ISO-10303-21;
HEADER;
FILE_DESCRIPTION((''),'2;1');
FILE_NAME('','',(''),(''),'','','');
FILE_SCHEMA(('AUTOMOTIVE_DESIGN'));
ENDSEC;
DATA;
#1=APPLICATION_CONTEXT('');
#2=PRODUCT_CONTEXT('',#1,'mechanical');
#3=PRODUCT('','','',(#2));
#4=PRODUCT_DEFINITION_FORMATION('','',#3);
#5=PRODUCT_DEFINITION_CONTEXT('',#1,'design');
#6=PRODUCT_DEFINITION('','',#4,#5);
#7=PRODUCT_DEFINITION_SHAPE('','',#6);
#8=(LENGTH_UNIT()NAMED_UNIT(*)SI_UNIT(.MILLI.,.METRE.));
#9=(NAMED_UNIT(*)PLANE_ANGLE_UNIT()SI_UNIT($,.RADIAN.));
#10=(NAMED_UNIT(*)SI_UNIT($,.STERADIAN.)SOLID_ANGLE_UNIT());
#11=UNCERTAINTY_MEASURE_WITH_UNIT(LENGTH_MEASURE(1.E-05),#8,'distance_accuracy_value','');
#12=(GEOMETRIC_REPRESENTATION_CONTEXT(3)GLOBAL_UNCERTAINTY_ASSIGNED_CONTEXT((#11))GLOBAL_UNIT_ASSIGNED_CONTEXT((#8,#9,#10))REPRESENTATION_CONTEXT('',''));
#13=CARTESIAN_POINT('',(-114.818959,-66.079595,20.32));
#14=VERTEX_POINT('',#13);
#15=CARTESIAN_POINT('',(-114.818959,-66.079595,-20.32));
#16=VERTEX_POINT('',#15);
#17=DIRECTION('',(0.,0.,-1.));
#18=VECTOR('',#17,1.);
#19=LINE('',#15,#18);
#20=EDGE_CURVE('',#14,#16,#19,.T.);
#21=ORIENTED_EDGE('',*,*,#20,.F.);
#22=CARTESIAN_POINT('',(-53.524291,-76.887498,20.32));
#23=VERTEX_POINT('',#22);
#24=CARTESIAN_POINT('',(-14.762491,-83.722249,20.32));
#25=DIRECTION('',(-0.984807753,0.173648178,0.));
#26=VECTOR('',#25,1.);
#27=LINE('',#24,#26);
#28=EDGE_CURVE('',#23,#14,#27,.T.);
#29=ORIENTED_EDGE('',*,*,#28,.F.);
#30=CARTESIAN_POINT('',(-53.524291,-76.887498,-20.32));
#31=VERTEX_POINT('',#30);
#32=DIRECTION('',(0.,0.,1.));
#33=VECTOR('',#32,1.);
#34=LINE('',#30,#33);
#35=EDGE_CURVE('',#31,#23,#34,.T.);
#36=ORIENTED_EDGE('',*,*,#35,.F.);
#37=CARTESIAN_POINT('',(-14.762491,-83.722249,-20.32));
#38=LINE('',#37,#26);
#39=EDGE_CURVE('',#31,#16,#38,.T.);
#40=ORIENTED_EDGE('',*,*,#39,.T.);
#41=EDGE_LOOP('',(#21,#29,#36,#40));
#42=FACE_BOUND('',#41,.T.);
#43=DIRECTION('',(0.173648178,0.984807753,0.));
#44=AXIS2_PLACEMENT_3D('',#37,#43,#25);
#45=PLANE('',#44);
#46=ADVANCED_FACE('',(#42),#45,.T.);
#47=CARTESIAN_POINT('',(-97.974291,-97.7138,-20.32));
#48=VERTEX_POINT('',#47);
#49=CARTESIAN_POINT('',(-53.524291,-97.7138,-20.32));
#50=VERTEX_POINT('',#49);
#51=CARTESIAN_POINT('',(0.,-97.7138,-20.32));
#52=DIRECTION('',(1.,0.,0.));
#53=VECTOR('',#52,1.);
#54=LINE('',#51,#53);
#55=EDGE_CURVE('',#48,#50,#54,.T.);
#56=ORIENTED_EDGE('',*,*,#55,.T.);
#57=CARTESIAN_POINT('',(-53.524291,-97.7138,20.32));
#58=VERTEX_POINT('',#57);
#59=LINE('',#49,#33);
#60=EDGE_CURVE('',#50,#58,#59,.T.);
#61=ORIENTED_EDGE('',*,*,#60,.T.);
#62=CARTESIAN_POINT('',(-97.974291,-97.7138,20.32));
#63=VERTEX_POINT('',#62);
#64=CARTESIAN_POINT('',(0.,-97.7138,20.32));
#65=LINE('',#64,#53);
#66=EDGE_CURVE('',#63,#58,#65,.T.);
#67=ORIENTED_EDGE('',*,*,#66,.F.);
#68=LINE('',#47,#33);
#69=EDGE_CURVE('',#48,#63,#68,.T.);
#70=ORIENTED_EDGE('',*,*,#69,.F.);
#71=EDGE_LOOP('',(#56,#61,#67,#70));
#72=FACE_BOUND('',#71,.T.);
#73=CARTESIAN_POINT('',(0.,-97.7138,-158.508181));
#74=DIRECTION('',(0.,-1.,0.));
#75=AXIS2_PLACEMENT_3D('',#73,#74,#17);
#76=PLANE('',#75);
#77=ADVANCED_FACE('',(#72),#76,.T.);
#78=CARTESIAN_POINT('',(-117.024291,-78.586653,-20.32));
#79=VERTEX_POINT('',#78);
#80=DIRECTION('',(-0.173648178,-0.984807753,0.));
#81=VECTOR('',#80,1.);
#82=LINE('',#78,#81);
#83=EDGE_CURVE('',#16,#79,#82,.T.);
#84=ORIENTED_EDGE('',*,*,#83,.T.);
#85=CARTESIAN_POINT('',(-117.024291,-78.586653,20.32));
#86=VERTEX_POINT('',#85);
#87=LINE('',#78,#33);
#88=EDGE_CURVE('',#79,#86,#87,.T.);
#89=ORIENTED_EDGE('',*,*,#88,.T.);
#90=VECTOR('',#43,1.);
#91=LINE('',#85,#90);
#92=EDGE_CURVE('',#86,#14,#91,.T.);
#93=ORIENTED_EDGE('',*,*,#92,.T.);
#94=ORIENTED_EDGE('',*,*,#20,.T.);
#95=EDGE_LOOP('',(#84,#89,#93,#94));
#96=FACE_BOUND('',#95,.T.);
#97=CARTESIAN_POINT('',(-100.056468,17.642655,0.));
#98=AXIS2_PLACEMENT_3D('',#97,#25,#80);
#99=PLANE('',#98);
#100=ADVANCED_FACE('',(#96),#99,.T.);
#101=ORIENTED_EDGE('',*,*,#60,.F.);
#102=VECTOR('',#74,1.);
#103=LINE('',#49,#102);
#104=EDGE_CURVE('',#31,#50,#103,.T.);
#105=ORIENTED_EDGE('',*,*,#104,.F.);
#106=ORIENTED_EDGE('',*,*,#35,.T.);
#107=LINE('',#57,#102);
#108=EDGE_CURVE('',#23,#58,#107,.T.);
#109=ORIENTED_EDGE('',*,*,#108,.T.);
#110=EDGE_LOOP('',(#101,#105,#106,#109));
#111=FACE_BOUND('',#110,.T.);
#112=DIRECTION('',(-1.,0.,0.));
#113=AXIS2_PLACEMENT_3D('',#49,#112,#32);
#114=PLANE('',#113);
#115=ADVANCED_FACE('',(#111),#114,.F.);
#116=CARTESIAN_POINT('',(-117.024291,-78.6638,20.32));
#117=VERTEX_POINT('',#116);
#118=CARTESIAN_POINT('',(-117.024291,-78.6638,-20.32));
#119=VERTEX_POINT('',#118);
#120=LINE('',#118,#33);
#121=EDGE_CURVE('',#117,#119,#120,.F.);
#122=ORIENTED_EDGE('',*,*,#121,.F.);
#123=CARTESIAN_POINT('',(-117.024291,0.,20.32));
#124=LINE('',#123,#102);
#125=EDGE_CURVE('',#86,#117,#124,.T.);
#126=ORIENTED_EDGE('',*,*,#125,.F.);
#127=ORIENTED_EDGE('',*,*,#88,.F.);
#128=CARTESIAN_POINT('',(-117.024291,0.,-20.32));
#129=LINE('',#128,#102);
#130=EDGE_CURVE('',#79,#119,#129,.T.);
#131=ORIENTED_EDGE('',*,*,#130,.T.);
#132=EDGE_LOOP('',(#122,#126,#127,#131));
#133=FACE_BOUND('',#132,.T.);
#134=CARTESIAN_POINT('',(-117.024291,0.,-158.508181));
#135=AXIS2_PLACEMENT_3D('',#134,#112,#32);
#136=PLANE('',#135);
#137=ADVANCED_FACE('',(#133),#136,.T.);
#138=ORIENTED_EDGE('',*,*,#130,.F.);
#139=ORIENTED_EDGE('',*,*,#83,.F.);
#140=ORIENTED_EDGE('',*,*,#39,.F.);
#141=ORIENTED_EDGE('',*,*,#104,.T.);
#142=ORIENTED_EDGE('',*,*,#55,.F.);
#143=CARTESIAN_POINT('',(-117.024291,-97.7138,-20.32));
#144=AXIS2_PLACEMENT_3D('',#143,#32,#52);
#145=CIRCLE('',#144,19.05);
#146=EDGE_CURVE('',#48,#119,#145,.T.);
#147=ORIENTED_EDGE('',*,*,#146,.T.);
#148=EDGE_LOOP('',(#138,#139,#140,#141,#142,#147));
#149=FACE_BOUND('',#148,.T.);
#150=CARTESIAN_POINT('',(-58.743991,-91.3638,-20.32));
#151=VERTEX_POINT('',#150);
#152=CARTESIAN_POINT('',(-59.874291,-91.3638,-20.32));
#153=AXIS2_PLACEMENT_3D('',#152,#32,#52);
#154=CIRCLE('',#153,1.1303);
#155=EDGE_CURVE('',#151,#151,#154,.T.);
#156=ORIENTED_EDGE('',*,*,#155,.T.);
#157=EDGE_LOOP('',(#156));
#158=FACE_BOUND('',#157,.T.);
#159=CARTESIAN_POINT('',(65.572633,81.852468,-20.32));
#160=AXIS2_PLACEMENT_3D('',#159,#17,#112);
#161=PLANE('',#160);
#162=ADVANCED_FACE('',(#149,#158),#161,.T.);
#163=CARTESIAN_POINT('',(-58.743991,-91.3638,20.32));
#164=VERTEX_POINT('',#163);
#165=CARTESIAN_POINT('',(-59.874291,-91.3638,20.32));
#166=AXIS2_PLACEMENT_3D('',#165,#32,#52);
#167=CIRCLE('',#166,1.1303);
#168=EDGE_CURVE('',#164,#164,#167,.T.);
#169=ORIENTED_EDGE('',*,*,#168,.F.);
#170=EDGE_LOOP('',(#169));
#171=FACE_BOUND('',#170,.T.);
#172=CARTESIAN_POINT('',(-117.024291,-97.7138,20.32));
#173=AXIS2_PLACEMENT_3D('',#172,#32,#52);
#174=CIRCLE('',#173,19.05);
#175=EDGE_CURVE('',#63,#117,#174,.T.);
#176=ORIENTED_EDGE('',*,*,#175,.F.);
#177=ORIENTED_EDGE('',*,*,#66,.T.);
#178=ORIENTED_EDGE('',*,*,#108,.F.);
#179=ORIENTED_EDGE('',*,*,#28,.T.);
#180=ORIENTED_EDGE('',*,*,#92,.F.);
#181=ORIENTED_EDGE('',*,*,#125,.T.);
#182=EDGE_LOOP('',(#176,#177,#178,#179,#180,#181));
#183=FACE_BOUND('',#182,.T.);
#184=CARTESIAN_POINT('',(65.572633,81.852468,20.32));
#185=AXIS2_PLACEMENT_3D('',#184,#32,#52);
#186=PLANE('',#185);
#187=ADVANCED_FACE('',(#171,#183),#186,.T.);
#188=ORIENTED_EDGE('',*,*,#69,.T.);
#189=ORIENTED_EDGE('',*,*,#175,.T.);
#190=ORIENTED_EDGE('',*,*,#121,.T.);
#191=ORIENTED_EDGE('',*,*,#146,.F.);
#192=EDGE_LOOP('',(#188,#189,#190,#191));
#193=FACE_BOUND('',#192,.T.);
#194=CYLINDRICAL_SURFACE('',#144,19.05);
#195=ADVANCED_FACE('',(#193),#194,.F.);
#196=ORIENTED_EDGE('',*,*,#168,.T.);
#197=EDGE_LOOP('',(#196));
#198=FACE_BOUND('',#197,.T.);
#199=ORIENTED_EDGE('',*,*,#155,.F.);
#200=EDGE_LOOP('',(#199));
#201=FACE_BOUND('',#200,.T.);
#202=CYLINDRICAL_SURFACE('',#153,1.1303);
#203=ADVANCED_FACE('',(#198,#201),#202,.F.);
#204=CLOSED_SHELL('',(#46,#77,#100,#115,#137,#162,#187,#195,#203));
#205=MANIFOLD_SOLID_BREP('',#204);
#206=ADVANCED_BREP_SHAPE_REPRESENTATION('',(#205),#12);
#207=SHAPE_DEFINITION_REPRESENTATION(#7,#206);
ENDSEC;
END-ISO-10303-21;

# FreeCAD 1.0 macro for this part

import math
import FreeCAD as App
import Part
import Sketcher
from FreeCAD import Vector
Q = App.Units.Quantity

doc = App.newDocument("Part")
body = doc.addObject("PartDesign::Body", "Body")

sketch1 = body.newObject("Sketcher::SketchObject", "Sketch")
sketch1.Placement = App.Placement(Vector(-117.024291, -78.586653, -20.32), App.Rotation(Vector(0.051794909, 0.293743526, 0.954479978), Vector(-0.165743709, -0.939979282, 0.298274993), Vector(0.984807753, -0.173648178, 0), "ZXY"))
sketch1.addGeometry(Part.LineSegment(Vector(0, 0, 0), Vector(3.788092, -12.121896, 0)), False)
sketch1.addGeometry(Part.LineSegment(Vector(3.788092, -12.121896, 0), Vector(42.578159, 0, 0)), False)
sketch1.addGeometry(Part.LineSegment(Vector(42.578159, 0, 0), Vector(38.790066, 12.121896, 0)), False)
sketch1.addGeometry(Part.LineSegment(Vector(38.790066, 12.121896, 0), Vector(0, 0, 0)), False)
sketch1.addConstraint(Sketcher.Constraint("Coincident", 0, 2, 1, 1))
sketch1.addConstraint(Sketcher.Constraint("Coincident", 1, 2, 2, 1))
sketch1.addConstraint(Sketcher.Constraint("Coincident", 2, 2, 3, 1))
sketch1.addConstraint(Sketcher.Constraint("Coincident", 3, 2, 0, 1))
sketch1.addConstraint(Sketcher.Constraint("Coincident", 3, 2, -1, 1))
sketch1.addConstraint(Sketcher.Constraint("PointOnObject", 1, 2, -1))
sketch1.addConstraint(Sketcher.Constraint("Perpendicular", 0, 1))
sketch1.addConstraint(Sketcher.Constraint("Perpendicular", 1, 2))
sketch1.addConstraint(Sketcher.Constraint("Perpendicular", 2, 3))
sketch1.addConstraint(Sketcher.Constraint("Distance", 0, Q("0.5 in")))
sketch1.addConstraint(Sketcher.Constraint("Distance", 1, Q("1.6 in")))

sketch2 = body.newObject("Sketcher::SketchObject", "Sketch001")
sketch2.AttachmentSupport = (doc.getObject("XY_Plane"), [""])
sketch2.MapMode = "FlatFace"
sketch2.addGeometry(Part.LineSegment(Vector(-111.378641, -46.568583, 0), Vector(-11.322174, -64.211238, 0)), False)
sketch2.addGeometry(Part.ArcOfCircle(Part.Circle(Vector(0, 0, 0), Vector(0, 0, 1), 65.2018), math.radians(-100), math.radians(30)), False)
sketch2.addGeometry(Part.LineSegment(Vector(56.466415, 32.6009, 0), Vector(37.416415, 65.596468, 0)), False)
sketch2.addConstraint(Sketcher.Constraint("Tangent", 0, 2, 1, 1))
sketch2.addConstraint(Sketcher.Constraint("Tangent", 1, 2, 2, 1))
sketch2.addConstraint(Sketcher.Constraint("Coincident", 1, 3, -1, 1))
sketch2.addConstraint(Sketcher.Constraint("Distance", 0, Q("4 in")))
sketch2.addConstraint(Sketcher.Constraint("Angle", 0, Q("-10 deg")))
sketch2.addConstraint(Sketcher.Constraint("Angle", 2, Q("120 deg")))
sketch2.addConstraint(Sketcher.Constraint("Radius", 1, Q("2.567 in")))
sketch2.addConstraint(Sketcher.Constraint("Distance", 2, Q("1.5 in")))
doc.recompute()

additivepipe = body.newObject("PartDesign::AdditivePipe", "AdditivePipe")
additivepipe.Profile = sketch1
additivepipe.Spine = (sketch2, ["Edge1", "Edge2", "Edge3"])

sketch3 = body.newObject("Sketcher::SketchObject", "Sketch002")
sketch3.AttachmentSupport = (doc.getObject("XY_Plane"), [""])
sketch3.MapMode = "FlatFace"
sketch3.AttachmentOffset = App.Placement(Vector(0, 0, 0.8 * 25.4), App.Rotation())
sketch3.addGeometry(Part.LineSegment(Vector(-16.967823, -96.229308, 0), Vector(-117.024291, -78.586653, 0)), False)
sketch3.addGeometry(Part.LineSegment(Vector(-117.024291, -78.586653, 0), Vector(-117.024291, -97.7138, 0)), False)
sketch3.addGeometry(Part.LineSegment(Vector(-117.024291, -97.7138, 0), Vector(0, -97.7138, 0)), False)
sketch3.addGeometry(Part.ArcOfCircle(Part.Circle(Vector(0, 0, 0), Vector(0, 0, 1), 97.7138), math.radians(-100), math.radians(-90)), False)
sketch3.addGeometry(Part.ArcOfCircle(Part.Circle(Vector(0, 0, 0), Vector(0, 0, 1), 97.7138), math.radians(-90), math.radians(0)), False)
sketch3.addGeometry(Part.LineSegment(Vector(0, -97.7138, 0), Vector(97.7138, -97.7138, 0)), False)
sketch3.addGeometry(Part.LineSegment(Vector(97.7138, -97.7138, 0), Vector(97.7138, 0, 0)), False)
sketch3.addGeometry(Part.ArcOfCircle(Part.Circle(Vector(0, 0, 0), Vector(0, 0, 1), 97.7138), math.radians(0), math.radians(30)), False)
sketch3.addGeometry(Part.LineSegment(Vector(97.7138, 0, 0), Vector(97.7138, 81.852468, 0)), False)
sketch3.addGeometry(Part.LineSegment(Vector(97.7138, 81.852468, 0), Vector(65.572633, 81.852468, 0)), False)
sketch3.addGeometry(Part.LineSegment(Vector(65.572633, 81.852468, 0), Vector(84.622633, 48.8569, 0)), False)
sketch3.addConstraint(Sketcher.Constraint("Coincident", 0, 2, 1, 1))
sketch3.addConstraint(Sketcher.Constraint("Coincident", 1, 2, 2, 1))
sketch3.addConstraint(Sketcher.Constraint("Tangent", 2, 2, 3, 2))
sketch3.addConstraint(Sketcher.Constraint("Tangent", 3, 1, 0, 1))
sketch3.addConstraint(Sketcher.Constraint("Tangent", 4, 1, 5, 1))
sketch3.addConstraint(Sketcher.Constraint("Coincident", 5, 2, 6, 1))
sketch3.addConstraint(Sketcher.Constraint("Tangent", 6, 2, 4, 2))
sketch3.addConstraint(Sketcher.Constraint("Tangent", 7, 1, 8, 1))
sketch3.addConstraint(Sketcher.Constraint("Coincident", 8, 2, 9, 1))
sketch3.addConstraint(Sketcher.Constraint("Coincident", 9, 2, 10, 1))
sketch3.addConstraint(Sketcher.Constraint("Tangent", 10, 2, 7, 2))
sketch3.addConstraint(Sketcher.Constraint("Vertical", 1))
sketch3.addConstraint(Sketcher.Constraint("Horizontal", 2))
sketch3.addConstraint(Sketcher.Constraint("Horizontal", 5))
sketch3.addConstraint(Sketcher.Constraint("Vertical", 6))
sketch3.addConstraint(Sketcher.Constraint("Vertical", 8))
sketch3.addConstraint(Sketcher.Constraint("Horizontal", 9))
sketch3.addConstraint(Sketcher.Constraint("Coincident", 3, 3, -1, 1))
sketch3.addConstraint(Sketcher.Constraint("Coincident", 4, 3, -1, 1))
sketch3.addConstraint(Sketcher.Constraint("Coincident", 7, 3, -1, 1))
sketch3.addConstraint(Sketcher.Constraint("Equal", 3, 4))
sketch3.addConstraint(Sketcher.Constraint("Equal", 4, 7))
sketch3.addConstraint(Sketcher.Constraint("Distance", 0, Q("4 in")))
sketch3.addConstraint(Sketcher.Constraint("Angle", 0, Q("170 deg")))
sketch3.addConstraint(Sketcher.Constraint("Angle", 10, Q("-60 deg")))
sketch3.addConstraint(Sketcher.Constraint("Radius", 3, Q("3.847 in")))
sketch3.addConstraint(Sketcher.Constraint("Distance", 10, Q("1.5 in")))
pad1 = body.newObject("PartDesign::Pad", "Pad")
pad1.Profile = sketch3
pad1.Length = Q("1.6 in")
pad1.Reversed = True

sketch4 = body.newObject("Sketcher::SketchObject", "Sketch003")
sketch4.AttachmentSupport = (doc.getObject("XY_Plane"), [""])
sketch4.MapMode = "FlatFace"
sketch4.AttachmentOffset = App.Placement(Vector(0, 0, 0.8 * 25.4), App.Rotation())
sketch4.addGeometry(Part.Circle(Vector(91.3638, -91.3638, 0), Vector(0, 0, 1), 1.1303), False)
sketch4.addGeometry(Part.Circle(Vector(-41.9735, -91.3638, 0), Vector(0, 0, 1), 1.1303), False)
sketch4.addConstraint(Sketcher.Constraint("Equal", 0, 1))
sketch4.addConstraint(Sketcher.Constraint("Horizontal", 0, 3, 1, 3))
sketch4.addConstraint(Sketcher.Constraint("Diameter", 0, Q("0.089 in")))
sketch4.addConstraint(Sketcher.Constraint("DistanceX", -1, 1, 0, 3, Q("3.597 in")))
sketch4.addConstraint(Sketcher.Constraint("DistanceY", 0, 3, -1, 1, Q("3.597 in")))
sketch4.addConstraint(Sketcher.Constraint("DistanceX", 1, 3, -1, 1, Q("1.6525 in")))
pocket1 = body.newObject("PartDesign::Pocket", "Pocket")
pocket1.Profile = sketch4
pocket1.Type = "ThroughAll"

sketch5 = body.newObject("Sketcher::SketchObject", "Sketch004")
sketch5.AttachmentSupport = (doc.getObject("XY_Plane"), [""])
sketch5.MapMode = "FlatFace"
sketch5.AttachmentOffset = App.Placement(Vector(0, 0, 0.8 * 25.4), App.Rotation())
sketch5.addGeometry(Part.LineSegment(Vector(-53.524291, 97.809508, 0), Vector(-53.524291, -97.7138, 0)), False)
sketch5.addGeometry(Part.LineSegment(Vector(-53.524291, -97.7138, 0), Vector(141.999017, -97.7138, 0)), False)
sketch5.addGeometry(Part.LineSegment(Vector(141.999017, -97.7138, 0), Vector(141.999017, 97.809508, 0)), False)
sketch5.addGeometry(Part.LineSegment(Vector(141.999017, 97.809508, 0), Vector(-53.524291, 97.809508, 0)), False)
sketch5.addConstraint(Sketcher.Constraint("Coincident", 0, 2, 1, 1))
sketch5.addConstraint(Sketcher.Constraint("Coincident", 1, 2, 2, 1))
sketch5.addConstraint(Sketcher.Constraint("Coincident", 2, 2, 3, 1))
sketch5.addConstraint(Sketcher.Constraint("Coincident", 3, 2, 0, 1))
sketch5.addConstraint(Sketcher.Constraint("Vertical", 0))
sketch5.addConstraint(Sketcher.Constraint("Horizontal", 1))
sketch5.addConstraint(Sketcher.Constraint("Vertical", 2))
sketch5.addConstraint(Sketcher.Constraint("Horizontal", 3))
sketch5.addConstraint(Sketcher.Constraint("Equal", 3, 0))
sketch5.addConstraint(Sketcher.Constraint("DistanceY", 0, 2, -1, 1, Q("3.847 in")))
sketch5.addConstraint(Sketcher.Constraint("DistanceX", 1, 1, 1, 2, Q("195.523308 mm")))
sketch5.addConstraint(Sketcher.Constraint("DistanceX", 0, 2, -1, 1, Q("53.524291 mm")))
pocket2 = body.newObject("PartDesign::Pocket", "Pocket001")
pocket2.Profile = sketch5
pocket2.Type = "ThroughAll"

sketch6 = body.newObject("Sketcher::SketchObject", "Sketch005")
sketch6.AttachmentSupport = (doc.getObject("XY_Plane"), [""])
sketch6.MapMode = "FlatFace"
sketch6.AttachmentOffset = App.Placement(Vector(0, 0, 0.8 * 25.4), App.Rotation())
sketch6.addGeometry(Part.Circle(Vector(-59.874291, -91.3638, 0), Vector(0, 0, 1), 1.1303), False)
sketch6.addConstraint(Sketcher.Constraint("Diameter", 0, Q("0.089 in")))
sketch6.addConstraint(Sketcher.Constraint("DistanceY", 0, 3, -1, 1, Q("3.597 in")))
sketch6.addConstraint(Sketcher.Constraint("DistanceX", 0, 3, -1, 1, Q("59.874291 mm")))
pocket3 = body.newObject("PartDesign::Pocket", "Pocket002")
pocket3.Profile = sketch6
pocket3.Type = "ThroughAll"

sketch7 = body.newObject("Sketcher::SketchObject", "Sketch006")
sketch7.AttachmentSupport = (doc.getObject("XY_Plane"), [""])
sketch7.MapMode = "FlatFace"
sketch7.AttachmentOffset = App.Placement(Vector(0, 0, 0.8 * 25.4), App.Rotation())
sketch7.addGeometry(Part.Circle(Vector(-117.024291, -97.7138, 0), Vector(0, 0, 1), 19.05), False)
sketch7.addConstraint(Sketcher.Constraint("Diameter", 0, Q("1.5 in")))
sketch7.addConstraint(Sketcher.Constraint("DistanceY", 0, 3, -1, 1, Q("3.847 in")))
sketch7.addConstraint(Sketcher.Constraint("DistanceX", 0, 3, -1, 1, Q("117.024291 mm")))
pocket4 = body.newObject("PartDesign::Pocket", "Pocket003")
pocket4.Profile = sketch7
pocket4.Type = "ThroughAll"

doc.recompute()
